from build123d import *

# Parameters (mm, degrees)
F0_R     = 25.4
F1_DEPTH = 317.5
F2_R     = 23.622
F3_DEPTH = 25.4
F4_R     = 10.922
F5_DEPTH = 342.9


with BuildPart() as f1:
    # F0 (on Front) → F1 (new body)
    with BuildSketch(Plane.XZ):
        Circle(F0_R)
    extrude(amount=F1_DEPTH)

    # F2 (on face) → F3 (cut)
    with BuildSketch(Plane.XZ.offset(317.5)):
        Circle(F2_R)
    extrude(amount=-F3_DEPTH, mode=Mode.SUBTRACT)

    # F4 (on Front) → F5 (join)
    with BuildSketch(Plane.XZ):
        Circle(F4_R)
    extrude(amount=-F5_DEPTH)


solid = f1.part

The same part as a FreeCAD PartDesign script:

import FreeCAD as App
import Part
import Sketcher

V = App.Vector
Q = App.Units.Quantity

doc = App.newDocument("Part")
body = doc.addObject("PartDesign::Body", "Body")

# Sketch on XZ plane
sketch1 = doc.addObject("Sketcher::SketchObject", "Sketch")
body.addObject(sketch1)
sketch1.AttachmentSupport = (doc.XZ_Plane, [""])
sketch1.MapMode = "FlatFace"
sketch1.addGeometry(Part.Circle(V(0, 0, 0), V(0, 0, 1), 25), False)
sketch1.addConstraint([
    Sketcher.Constraint("Coincident", 0, 3, -1, 1),
    Sketcher.Constraint("Diameter", 0, Q("2 in")),
])
pad1 = doc.addObject("PartDesign::Pad", "Pad")
body.addObject(pad1)
pad1.Profile = sketch1
pad1.Length = Q("12.5 in")

# Sketch on XZ plane
sketch2 = doc.addObject("Sketcher::SketchObject", "Sketch001")
body.addObject(sketch2)
sketch2.AttachmentSupport = (doc.XZ_Plane, [""])
sketch2.MapMode = "FlatFace"
sketch2.AttachmentOffset = App.Placement(V(0, 0, 12.5 * 25.4), App.Rotation())
sketch2.addGeometry(Part.Circle(V(0, 0, 0), V(0, 0, 1), 24), False)
sketch2.addConstraint([
    Sketcher.Constraint("Coincident", 0, 3, -1, 1),
    Sketcher.Constraint("Diameter", 0, Q("1.86 in")),
])
pocket1 = doc.addObject("PartDesign::Pocket", "Pocket")
body.addObject(pocket1)
pocket1.Profile = sketch2
pocket1.Length = Q("1 in")

# Sketch on XZ plane
sketch3 = doc.addObject("Sketcher::SketchObject", "Sketch002")
body.addObject(sketch3)
sketch3.AttachmentSupport = (doc.XZ_Plane, [""])
sketch3.MapMode = "FlatFace"
sketch3.addGeometry(Part.Circle(V(0, 0, 0), V(0, 0, 1), 11), False)
sketch3.addConstraint([
    Sketcher.Constraint("Coincident", 0, 3, -1, 1),
    Sketcher.Constraint("Diameter", 0, Q("0.86 in")),
])
pad2 = doc.addObject("PartDesign::Pad", "Pad001")
body.addObject(pad2)
pad2.Profile = sketch3
pad2.Length = Q("13.5 in")
pad2.Reversed = True

doc.recompute()
